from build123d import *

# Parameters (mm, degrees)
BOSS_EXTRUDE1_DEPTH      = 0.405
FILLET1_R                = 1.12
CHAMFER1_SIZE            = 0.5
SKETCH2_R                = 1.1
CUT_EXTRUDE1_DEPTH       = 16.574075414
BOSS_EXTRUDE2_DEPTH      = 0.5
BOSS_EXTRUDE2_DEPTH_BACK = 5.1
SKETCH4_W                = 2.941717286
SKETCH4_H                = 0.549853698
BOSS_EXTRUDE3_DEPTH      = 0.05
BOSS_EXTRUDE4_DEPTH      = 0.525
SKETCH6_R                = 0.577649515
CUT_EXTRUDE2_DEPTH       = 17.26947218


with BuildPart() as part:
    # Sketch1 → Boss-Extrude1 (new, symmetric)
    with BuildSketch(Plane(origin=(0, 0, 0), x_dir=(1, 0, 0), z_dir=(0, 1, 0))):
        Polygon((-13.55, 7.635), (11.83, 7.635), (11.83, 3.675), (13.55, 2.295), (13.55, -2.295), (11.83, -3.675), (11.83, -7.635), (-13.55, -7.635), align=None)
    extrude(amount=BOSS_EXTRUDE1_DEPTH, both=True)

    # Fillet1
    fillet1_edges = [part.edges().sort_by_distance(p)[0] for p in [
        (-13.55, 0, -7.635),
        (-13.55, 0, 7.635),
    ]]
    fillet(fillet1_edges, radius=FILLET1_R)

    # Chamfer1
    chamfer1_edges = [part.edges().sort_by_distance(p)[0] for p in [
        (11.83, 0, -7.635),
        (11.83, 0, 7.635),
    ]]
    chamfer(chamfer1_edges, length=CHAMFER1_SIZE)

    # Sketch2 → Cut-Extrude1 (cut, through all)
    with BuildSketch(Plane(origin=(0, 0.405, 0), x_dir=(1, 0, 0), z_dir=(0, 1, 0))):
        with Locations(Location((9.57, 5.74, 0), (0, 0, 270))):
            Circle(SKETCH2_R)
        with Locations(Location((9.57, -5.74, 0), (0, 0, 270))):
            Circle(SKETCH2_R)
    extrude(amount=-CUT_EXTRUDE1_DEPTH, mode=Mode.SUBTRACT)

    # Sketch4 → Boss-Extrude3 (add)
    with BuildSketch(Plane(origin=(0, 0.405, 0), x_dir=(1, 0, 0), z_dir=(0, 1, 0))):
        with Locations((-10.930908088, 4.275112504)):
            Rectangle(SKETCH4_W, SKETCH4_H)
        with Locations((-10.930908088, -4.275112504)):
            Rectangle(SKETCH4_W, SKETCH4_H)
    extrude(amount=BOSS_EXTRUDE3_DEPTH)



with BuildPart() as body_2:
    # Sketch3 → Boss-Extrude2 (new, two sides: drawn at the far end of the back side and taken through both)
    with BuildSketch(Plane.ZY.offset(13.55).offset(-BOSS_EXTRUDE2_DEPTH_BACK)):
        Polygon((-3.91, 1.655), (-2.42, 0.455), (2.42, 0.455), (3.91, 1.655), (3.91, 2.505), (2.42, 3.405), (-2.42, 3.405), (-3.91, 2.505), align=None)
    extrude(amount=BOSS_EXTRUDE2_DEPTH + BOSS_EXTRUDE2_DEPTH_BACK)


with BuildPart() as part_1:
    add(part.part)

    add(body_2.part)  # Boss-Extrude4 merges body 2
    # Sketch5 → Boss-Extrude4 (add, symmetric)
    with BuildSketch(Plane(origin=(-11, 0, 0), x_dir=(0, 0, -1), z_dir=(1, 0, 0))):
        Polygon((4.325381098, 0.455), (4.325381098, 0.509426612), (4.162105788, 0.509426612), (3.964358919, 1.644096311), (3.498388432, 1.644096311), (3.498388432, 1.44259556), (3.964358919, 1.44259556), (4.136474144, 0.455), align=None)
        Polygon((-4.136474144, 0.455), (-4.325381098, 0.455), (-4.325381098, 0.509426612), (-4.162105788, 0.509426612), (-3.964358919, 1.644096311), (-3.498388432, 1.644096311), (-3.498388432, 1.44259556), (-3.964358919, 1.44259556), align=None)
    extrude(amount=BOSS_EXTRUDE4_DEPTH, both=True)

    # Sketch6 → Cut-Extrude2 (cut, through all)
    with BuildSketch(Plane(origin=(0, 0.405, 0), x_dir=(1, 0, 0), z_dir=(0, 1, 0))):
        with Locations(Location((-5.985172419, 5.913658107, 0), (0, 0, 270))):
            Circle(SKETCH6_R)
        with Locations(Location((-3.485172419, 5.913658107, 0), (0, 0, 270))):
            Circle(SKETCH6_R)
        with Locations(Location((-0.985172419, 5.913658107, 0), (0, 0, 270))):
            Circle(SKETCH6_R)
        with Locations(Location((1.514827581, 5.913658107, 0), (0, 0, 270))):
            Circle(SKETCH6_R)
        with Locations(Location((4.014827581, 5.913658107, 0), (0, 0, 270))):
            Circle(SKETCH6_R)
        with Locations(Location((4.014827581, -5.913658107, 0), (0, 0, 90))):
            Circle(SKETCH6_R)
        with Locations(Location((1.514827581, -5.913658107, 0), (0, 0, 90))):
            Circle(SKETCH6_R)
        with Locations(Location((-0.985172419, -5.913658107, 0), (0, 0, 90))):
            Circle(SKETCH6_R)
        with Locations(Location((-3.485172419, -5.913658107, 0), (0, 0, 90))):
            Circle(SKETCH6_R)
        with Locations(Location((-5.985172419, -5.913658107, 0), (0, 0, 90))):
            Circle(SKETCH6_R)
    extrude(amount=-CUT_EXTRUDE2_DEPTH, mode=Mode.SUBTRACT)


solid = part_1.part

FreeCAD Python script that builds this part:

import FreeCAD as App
import Part
import Sketcher


def edges_at(feature, points):
    """Names of the edges that pass closest to the given points."""
    edges = feature.Shape.Edges
    near = lambda p: min(range(len(edges)), key=lambda i: edges[i].distToShape(Part.Vertex(*p))[0])
    return sorted({f"Edge{near(p) + 1}" for p in points})


def add_polygon(sketch, points):
    """Adds a closed chain of lines whose ends are joined by coincident constraints."""
    first, n = sketch.GeometryCount, len(points)
    for a, b in zip(points, points[1:] + points[:1]):
        sketch.addGeometry(Part.LineSegment(App.Vector(*a, 0), App.Vector(*b, 0)), False)
    for i in range(n):
        sketch.addConstraint(Sketcher.Constraint("Coincident", first + i, 2, first + (i + 1) % n, 1))

doc = App.newDocument("Part")
body = doc.addObject("PartDesign::Body", "Body")

sketch1 = body.newObject("Sketcher::SketchObject", "Sketch")
sketch1.AttachmentSupport = (doc.getObject("XZ_Plane"), [""])
sketch1.MapMode = "FlatFace"
add_polygon(sketch1, [(11.83, -7.635), (-13.55, -7.635), (-13.55, 7.635), (11.83, 7.635), (11.83, 3.675), (13.55, 2.295), (13.55, -2.295), (11.83, -3.675)])
sketch1.addConstraint([
    Sketcher.Constraint("Horizontal", 0),
    Sketcher.Constraint("Vertical", 1),
    Sketcher.Constraint("Horizontal", 2),
    Sketcher.Constraint("Vertical", 3),
    Sketcher.Constraint("Vertical", 5),
    Sketcher.Constraint("Vertical", 7),
    Sketcher.Constraint("Symmetric", 3, 2, 6, 2, -1),
    Sketcher.Constraint("Equal", 3, 7),
    Sketcher.Constraint("Equal", 4, 6),
    Sketcher.Constraint("DistanceX", 0, 2, 0, 1, 25.38),
    Sketcher.Constraint("DistanceY", 1, 1, 1, 2, 15.27),
    Sketcher.Constraint("DistanceY", 3, 2, 3, 1, 3.96),
    Sketcher.Constraint("DistanceY", 5, 2, 5, 1, 4.59),
    Sketcher.Constraint("DistanceX", 1, 2, 4, 2, 27.1),
    Sketcher.Constraint("DistanceX", 0, 2, -1, 1, 13.55),
])
pad1 = body.newObject("PartDesign::Pad", "Pad")
pad1.Profile = sketch1
pad1.Length = 0.81
pad1.Midplane = True
doc.recompute()

fillet = body.newObject("PartDesign::Fillet", "Fillet")
fillet.Base = (pad1, edges_at(pad1, [(-13.55, 0, -7.635), (-13.55, 0, 7.635)]))
fillet.Radius = 1.12
doc.recompute()

chamfer = body.newObject("PartDesign::Chamfer", "Chamfer")
chamfer.Base = (fillet, edges_at(fillet, [(11.83, 0, -7.635), (11.83, 0, 7.635)]))
chamfer.Size = 0.5

sketch2 = body.newObject("Sketcher::SketchObject", "Sketch001")
sketch2.AttachmentSupport = (doc.getObject("XZ_Plane"), [""])
sketch2.MapMode = "FlatFace"
sketch2.AttachmentOffset = App.Placement(App.Vector(0, 0, -0.405), App.Rotation())
sketch2.addGeometry([
    Part.Circle(App.Vector(9.57, -5.74, 0), App.Vector(0, 0, 1), 1.1),
    Part.Circle(App.Vector(9.57, 5.74, 0), App.Vector(0, 0, 1), 1.1),
], False)
sketch2.addConstraint([
    Sketcher.Constraint("Equal", 0, 1),
    Sketcher.Constraint("Symmetric", 0, 3, 1, 3, -1),
    Sketcher.Constraint("Diameter", 0, 2.2),
    Sketcher.Constraint("DistanceX", -1, 1, 0, 3, 9.57),
    Sketcher.Constraint("DistanceY", 0, 3, -1, 1, 5.74),
])
pocket1 = body.newObject("PartDesign::Pocket", "Pocket")
pocket1.Profile = sketch2
pocket1.Type = "ThroughAll"
pocket1.Reversed = True

sketch3 = body.newObject("Sketcher::SketchObject", "Sketch002")
sketch3.AttachmentSupport = (doc.getObject("XZ_Plane"), [""])
sketch3.MapMode = "FlatFace"
sketch3.AttachmentOffset = App.Placement(App.Vector(0, 0, -0.405), App.Rotation())
add_polygon(sketch3, [(-12.401767, -4.550039), (-12.401767, -4.000186), (-9.460049, -4.000186), (-9.460049, -4.550039)])
add_polygon(sketch3, [(-12.401767, 4.000186), (-12.401767, 4.550039), (-9.460049, 4.550039), (-9.460049, 4.000186)])
sketch3.addConstraint([
    Sketcher.Constraint("Vertical", 0),
    Sketcher.Constraint("Horizontal", 1),
    Sketcher.Constraint("Vertical", 2),
    Sketcher.Constraint("Horizontal", 3),
    Sketcher.Constraint("Vertical", 4),
    Sketcher.Constraint("Horizontal", 5),
    Sketcher.Constraint("Vertical", 6),
    Sketcher.Constraint("Horizontal", 7),
    Sketcher.Constraint("Symmetric", 3, 2, 4, 2, -1),
    Sketcher.Constraint("Symmetric", 1, 2, 6, 2, -1),
    Sketcher.Constraint("DistanceX", 1, 1, 1, 2, 2.941717),
    Sketcher.Constraint("DistanceY", 0, 1, 0, 2, 0.549854),
    Sketcher.Constraint("DistanceX", 1, 2, -1, 1, 9.460049),
    Sketcher.Constraint("DistanceY", 2, 2, -1, 1, 4.550039),
])
pad2 = body.newObject("PartDesign::Pad", "Pad001")
pad2.Profile = sketch3
pad2.Length = 0.05
pad2.Reversed = True
body2 = doc.addObject("PartDesign::Body", "Body001")

sketch4 = body2.newObject("Sketcher::SketchObject", "Sketch003")
sketch4.AttachmentSupport = (doc.getObject("YZ_Plane001"), [""])
sketch4.MapMode = "FlatFace"
sketch4.AttachmentOffset = App.Placement(App.Vector(0, 0, -13.55), App.Rotation())
add_polygon(sketch4, [(1.655, -3.91), (0.455, -2.42), (0.455, 2.42), (1.655, 3.91), (2.505, 3.91), (3.405, 2.42), (3.405, -2.42), (2.505, -3.91)])
sketch4.addConstraint([
    Sketcher.Constraint("Vertical", 1),
    Sketcher.Constraint("Horizontal", 3),
    Sketcher.Constraint("Vertical", 5),
    Sketcher.Constraint("Horizontal", 7),
    Sketcher.Constraint("Symmetric", 3, 2, 6, 2, -1),
    Sketcher.Constraint("Horizontal", 1, 2, 4, 2),
    Sketcher.Constraint("Horizontal", 0, 2, 5, 2),
    Sketcher.Constraint("Vertical", 2, 2, 7, 2),
    Sketcher.Constraint("Equal", 0, 2),
    Sketcher.Constraint("DistanceX", 3, 1, 3, 2, 0.85),
    Sketcher.Constraint("DistanceY", 1, 1, 1, 2, 4.84),
    Sketcher.Constraint("DistanceX", 1, 2, 2, 2, 1.2),
    Sketcher.Constraint("DistanceX", 3, 2, 4, 2, 0.9),
    Sketcher.Constraint("DistanceY", -1, 1, 2, 2, 3.91),
    Sketcher.Constraint("DistanceX", -1, 1, 0, 2, 0.455),
])
pad3 = body2.newObject("PartDesign::Pad", "Pad002")
pad3.Profile = sketch4
pad3.Type = "TwoLengths"
pad3.Length = 0.5
pad3.Length2 = 5.1
pad3.Reversed = True
body.AllowCompound = True
doc.recompute()

boolean = body.newObject("PartDesign::Boolean", "Boolean")
boolean.Type = "Fuse"
boolean.addObjects([body2])

sketch5 = body.newObject("Sketcher::SketchObject", "Sketch004")
sketch5.AttachmentSupport = (doc.getObject("YZ_Plane"), [""])
sketch5.MapMode = "FlatFace"
sketch5.AttachmentOffset = App.Placement(App.Vector(0, 0, -11), App.Rotation())
add_polygon(sketch5, [(0.455, -4.325381), (0.509427, -4.325381), (0.509427, -4.162106), (1.644096, -3.964359), (1.644096, -3.498388), (1.442596, -3.498388), (1.442596, -3.964359), (0.455, -4.136474)])
add_polygon(sketch5, [(0.455, 4.325381), (0.455, 4.136474), (1.442596, 3.964359), (1.442596, 3.498388), (1.644096, 3.498388), (1.644096, 3.964359), (0.509427, 4.162106), (0.509427, 4.325381)])
sketch5.addConstraint([
    Sketcher.Constraint("Horizontal", 0),
    Sketcher.Constraint("Vertical", 1),
    Sketcher.Constraint("Vertical", 3),
    Sketcher.Constraint("Horizontal", 4),
    Sketcher.Constraint("Vertical", 5),
    Sketcher.Constraint("Vertical", 7),
    Sketcher.Constraint("Vertical", 8),
    Sketcher.Constraint("Vertical", 10),
    Sketcher.Constraint("Horizontal", 11),
    Sketcher.Constraint("Vertical", 12),
    Sketcher.Constraint("Vertical", 14),
    Sketcher.Constraint("Horizontal", 15),
    Sketcher.Constraint("Symmetric", 6, 2, 8, 2, -1),
    Sketcher.Constraint("Symmetric", 5, 2, 9, 2, -1),
    Sketcher.Constraint("Symmetric", 3, 2, 11, 2, -1),
    Sketcher.Constraint("Symmetric", 1, 2, 13, 2, -1),
    Sketcher.Constraint("Parallel", 2, 6),
    Sketcher.Constraint("Parallel", 9, 13),
    Sketcher.Constraint("Horizontal", 2, 2, 5, 2),
    Sketcher.Constraint("Equal", 7, 8),
    Sketcher.Constraint("DistanceX", 4, 2, 4, 1, 0.201501),
    Sketcher.Constraint("DistanceX", -1, 1, 6, 2, 0.455),
    Sketcher.Constraint("DistanceY", 3, 1, 3, 2, 0.46597),
    Sketcher.Constraint("Distance", 6, 1.002481),
    Sketcher.Constraint("DistanceX", 0, 1, 0, 2, 0.054427),
    Sketcher.Constraint("DistanceY", 1, 1, 1, 2, 0.163275),
    Sketcher.Constraint("DistanceY", 7, 2, 7, 1, 0.188907),
    Sketcher.Constraint("DistanceY", 0, 2, -1, 1, 4.325381),
])
pad4 = body.newObject("PartDesign::Pad", "Pad003")
pad4.Profile = sketch5
pad4.Length = 1.05
pad4.Midplane = True

sketch6 = body.newObject("Sketcher::SketchObject", "Sketch005")
sketch6.AttachmentSupport = (doc.getObject("XZ_Plane"), [""])
sketch6.MapMode = "FlatFace"
sketch6.AttachmentOffset = App.Placement(App.Vector(0, 0, -0.405), App.Rotation())
sketch6.addGeometry([
    Part.Circle(App.Vector(-5.985172, -5.913658, 0), App.Vector(0, 0, 1), 0.57765),
    Part.Circle(App.Vector(-3.485172, -5.913658, 0), App.Vector(0, 0, 1), 0.57765),
    Part.Circle(App.Vector(-0.985172, -5.913658, 0), App.Vector(0, 0, 1), 0.57765),
    Part.Circle(App.Vector(1.514828, -5.913658, 0), App.Vector(0, 0, 1), 0.57765),
    Part.Circle(App.Vector(4.014828, -5.913658, 0), App.Vector(0, 0, 1), 0.57765),
    Part.Circle(App.Vector(4.014828, 5.913658, 0), App.Vector(0, 0, 1), 0.57765),
    Part.Circle(App.Vector(1.514828, 5.913658, 0), App.Vector(0, 0, 1), 0.57765),
    Part.Circle(App.Vector(-0.985172, 5.913658, 0), App.Vector(0, 0, 1), 0.57765),
    Part.Circle(App.Vector(-3.485172, 5.913658, 0), App.Vector(0, 0, 1), 0.57765),
    Part.Circle(App.Vector(-5.985172, 5.913658, 0), App.Vector(0, 0, 1), 0.57765),
], False)
sketch6.addConstraint([
    Sketcher.Constraint("Equal", 0, 1),
    Sketcher.Constraint("Equal", 1, 2),
    Sketcher.Constraint("Equal", 2, 3),
    Sketcher.Constraint("Equal", 3, 4),
    Sketcher.Constraint("Equal", 4, 5),
    Sketcher.Constraint("Equal", 5, 6),
    Sketcher.Constraint("Equal", 6, 7),
    Sketcher.Constraint("Equal", 7, 8),
    Sketcher.Constraint("Equal", 8, 9),
    Sketcher.Constraint("Symmetric", 4, 3, 5, 3, -1),
    Sketcher.Constraint("Symmetric", 3, 3, 6, 3, -1),
    Sketcher.Constraint("Symmetric", 2, 3, 7, 3, -1),
    Sketcher.Constraint("Symmetric", 1, 3, 8, 3, -1),
    Sketcher.Constraint("Symmetric", 0, 3, 9, 3, -1),
    Sketcher.Constraint("Horizontal", 0, 3, 1, 3),
    Sketcher.Constraint("Horizontal", 1, 3, 2, 3),
    Sketcher.Constraint("Horizontal", 2, 3, 3, 3),
    Sketcher.Constraint("Horizontal", 3, 3, 4, 3),
    Sketcher.Constraint("DistanceX", 0, 3, 2, 3, 5.0),
    Sketcher.Constraint("DistanceX", 1, 3, 3, 3, 5.0),
    Sketcher.Constraint("DistanceX", 2, 3, 4, 3, 5.0),
    Sketcher.Constraint("Diameter", 0, 1.155299),
    Sketcher.Constraint("DistanceX", 0, 3, 1, 3, 2.5),
    Sketcher.Constraint("DistanceY", 0, 3, -1, 1, 5.913658),
    Sketcher.Constraint("DistanceX", 0, 3, -1, 1, 5.985172),
])
pocket2 = body.newObject("PartDesign::Pocket", "Pocket001")
pocket2.Profile = sketch6
pocket2.Type = "ThroughAll"
pocket2.Reversed = True

doc.recompute()
